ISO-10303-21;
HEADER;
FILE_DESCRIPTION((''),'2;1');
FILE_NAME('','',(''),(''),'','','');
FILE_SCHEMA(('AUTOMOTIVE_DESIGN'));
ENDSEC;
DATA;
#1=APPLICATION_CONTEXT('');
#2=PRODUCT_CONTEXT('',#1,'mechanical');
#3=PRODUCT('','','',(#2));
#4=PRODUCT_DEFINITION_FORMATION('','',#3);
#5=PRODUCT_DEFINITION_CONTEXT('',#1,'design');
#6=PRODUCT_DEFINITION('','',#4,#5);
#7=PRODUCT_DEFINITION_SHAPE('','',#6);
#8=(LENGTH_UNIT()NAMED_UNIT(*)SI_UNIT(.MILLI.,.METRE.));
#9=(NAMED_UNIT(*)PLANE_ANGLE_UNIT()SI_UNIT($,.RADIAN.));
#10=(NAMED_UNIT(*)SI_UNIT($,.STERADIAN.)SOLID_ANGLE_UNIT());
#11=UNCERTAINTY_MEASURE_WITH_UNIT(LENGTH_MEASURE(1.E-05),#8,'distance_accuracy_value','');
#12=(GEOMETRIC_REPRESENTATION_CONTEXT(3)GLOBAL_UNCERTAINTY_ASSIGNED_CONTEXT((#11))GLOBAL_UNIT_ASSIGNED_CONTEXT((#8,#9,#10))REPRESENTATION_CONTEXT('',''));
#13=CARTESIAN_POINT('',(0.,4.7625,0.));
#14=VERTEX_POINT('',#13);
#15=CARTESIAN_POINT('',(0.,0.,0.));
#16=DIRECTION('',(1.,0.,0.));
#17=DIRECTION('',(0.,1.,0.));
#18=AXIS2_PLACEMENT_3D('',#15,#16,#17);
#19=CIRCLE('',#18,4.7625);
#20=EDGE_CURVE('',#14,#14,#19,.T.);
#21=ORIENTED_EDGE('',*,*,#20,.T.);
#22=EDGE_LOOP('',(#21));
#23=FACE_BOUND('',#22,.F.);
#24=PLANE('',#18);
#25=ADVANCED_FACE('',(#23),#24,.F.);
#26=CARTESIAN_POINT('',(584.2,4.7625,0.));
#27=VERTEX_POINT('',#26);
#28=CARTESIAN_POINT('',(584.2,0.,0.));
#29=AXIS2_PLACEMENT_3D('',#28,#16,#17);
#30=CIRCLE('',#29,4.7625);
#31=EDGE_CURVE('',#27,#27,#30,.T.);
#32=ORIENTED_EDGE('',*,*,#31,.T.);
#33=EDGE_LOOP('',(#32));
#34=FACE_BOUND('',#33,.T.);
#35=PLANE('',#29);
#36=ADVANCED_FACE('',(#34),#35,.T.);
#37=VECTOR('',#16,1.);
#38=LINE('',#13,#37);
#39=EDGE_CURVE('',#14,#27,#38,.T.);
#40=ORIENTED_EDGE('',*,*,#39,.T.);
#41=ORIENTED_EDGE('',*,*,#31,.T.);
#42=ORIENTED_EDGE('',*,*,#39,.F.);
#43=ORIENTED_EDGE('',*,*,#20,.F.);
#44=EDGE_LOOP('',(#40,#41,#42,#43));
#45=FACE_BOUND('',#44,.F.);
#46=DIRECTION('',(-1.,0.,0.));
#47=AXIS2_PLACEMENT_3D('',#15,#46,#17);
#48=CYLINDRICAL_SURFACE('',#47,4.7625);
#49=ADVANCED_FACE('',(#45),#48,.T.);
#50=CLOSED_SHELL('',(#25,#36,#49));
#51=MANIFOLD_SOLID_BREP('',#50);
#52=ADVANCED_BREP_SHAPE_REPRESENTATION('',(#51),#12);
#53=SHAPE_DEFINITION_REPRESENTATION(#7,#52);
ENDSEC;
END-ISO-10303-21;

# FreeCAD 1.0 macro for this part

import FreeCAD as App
import Part
import Sketcher
Q = App.Units.Quantity

doc = App.newDocument("Part")
body = doc.addObject("PartDesign::Body", "Body")

# Sketch on YZ plane
sketch1 = doc.addObject("Sketcher::SketchObject", "Sketch")
body.addObject(sketch1)
sketch1.AttachmentSupport = (doc.YZ_Plane, [""])
sketch1.MapMode = "FlatFace"
sketch1.addGeometry(Part.Circle(App.Vector(0, 0, 0), App.Vector(0, 0, 1), 4.7625), False)
sketch1.addConstraint(Sketcher.Constraint("Coincident", 0, 3, -1, 1))
sketch1.addConstraint(Sketcher.Constraint("Diameter", 0, Q("0.375 in")))
pad1 = doc.addObject("PartDesign::Pad", "Pad")
body.addObject(pad1)
pad1.Profile = sketch1
pad1.Length = Q("23 in")

doc.recompute()
